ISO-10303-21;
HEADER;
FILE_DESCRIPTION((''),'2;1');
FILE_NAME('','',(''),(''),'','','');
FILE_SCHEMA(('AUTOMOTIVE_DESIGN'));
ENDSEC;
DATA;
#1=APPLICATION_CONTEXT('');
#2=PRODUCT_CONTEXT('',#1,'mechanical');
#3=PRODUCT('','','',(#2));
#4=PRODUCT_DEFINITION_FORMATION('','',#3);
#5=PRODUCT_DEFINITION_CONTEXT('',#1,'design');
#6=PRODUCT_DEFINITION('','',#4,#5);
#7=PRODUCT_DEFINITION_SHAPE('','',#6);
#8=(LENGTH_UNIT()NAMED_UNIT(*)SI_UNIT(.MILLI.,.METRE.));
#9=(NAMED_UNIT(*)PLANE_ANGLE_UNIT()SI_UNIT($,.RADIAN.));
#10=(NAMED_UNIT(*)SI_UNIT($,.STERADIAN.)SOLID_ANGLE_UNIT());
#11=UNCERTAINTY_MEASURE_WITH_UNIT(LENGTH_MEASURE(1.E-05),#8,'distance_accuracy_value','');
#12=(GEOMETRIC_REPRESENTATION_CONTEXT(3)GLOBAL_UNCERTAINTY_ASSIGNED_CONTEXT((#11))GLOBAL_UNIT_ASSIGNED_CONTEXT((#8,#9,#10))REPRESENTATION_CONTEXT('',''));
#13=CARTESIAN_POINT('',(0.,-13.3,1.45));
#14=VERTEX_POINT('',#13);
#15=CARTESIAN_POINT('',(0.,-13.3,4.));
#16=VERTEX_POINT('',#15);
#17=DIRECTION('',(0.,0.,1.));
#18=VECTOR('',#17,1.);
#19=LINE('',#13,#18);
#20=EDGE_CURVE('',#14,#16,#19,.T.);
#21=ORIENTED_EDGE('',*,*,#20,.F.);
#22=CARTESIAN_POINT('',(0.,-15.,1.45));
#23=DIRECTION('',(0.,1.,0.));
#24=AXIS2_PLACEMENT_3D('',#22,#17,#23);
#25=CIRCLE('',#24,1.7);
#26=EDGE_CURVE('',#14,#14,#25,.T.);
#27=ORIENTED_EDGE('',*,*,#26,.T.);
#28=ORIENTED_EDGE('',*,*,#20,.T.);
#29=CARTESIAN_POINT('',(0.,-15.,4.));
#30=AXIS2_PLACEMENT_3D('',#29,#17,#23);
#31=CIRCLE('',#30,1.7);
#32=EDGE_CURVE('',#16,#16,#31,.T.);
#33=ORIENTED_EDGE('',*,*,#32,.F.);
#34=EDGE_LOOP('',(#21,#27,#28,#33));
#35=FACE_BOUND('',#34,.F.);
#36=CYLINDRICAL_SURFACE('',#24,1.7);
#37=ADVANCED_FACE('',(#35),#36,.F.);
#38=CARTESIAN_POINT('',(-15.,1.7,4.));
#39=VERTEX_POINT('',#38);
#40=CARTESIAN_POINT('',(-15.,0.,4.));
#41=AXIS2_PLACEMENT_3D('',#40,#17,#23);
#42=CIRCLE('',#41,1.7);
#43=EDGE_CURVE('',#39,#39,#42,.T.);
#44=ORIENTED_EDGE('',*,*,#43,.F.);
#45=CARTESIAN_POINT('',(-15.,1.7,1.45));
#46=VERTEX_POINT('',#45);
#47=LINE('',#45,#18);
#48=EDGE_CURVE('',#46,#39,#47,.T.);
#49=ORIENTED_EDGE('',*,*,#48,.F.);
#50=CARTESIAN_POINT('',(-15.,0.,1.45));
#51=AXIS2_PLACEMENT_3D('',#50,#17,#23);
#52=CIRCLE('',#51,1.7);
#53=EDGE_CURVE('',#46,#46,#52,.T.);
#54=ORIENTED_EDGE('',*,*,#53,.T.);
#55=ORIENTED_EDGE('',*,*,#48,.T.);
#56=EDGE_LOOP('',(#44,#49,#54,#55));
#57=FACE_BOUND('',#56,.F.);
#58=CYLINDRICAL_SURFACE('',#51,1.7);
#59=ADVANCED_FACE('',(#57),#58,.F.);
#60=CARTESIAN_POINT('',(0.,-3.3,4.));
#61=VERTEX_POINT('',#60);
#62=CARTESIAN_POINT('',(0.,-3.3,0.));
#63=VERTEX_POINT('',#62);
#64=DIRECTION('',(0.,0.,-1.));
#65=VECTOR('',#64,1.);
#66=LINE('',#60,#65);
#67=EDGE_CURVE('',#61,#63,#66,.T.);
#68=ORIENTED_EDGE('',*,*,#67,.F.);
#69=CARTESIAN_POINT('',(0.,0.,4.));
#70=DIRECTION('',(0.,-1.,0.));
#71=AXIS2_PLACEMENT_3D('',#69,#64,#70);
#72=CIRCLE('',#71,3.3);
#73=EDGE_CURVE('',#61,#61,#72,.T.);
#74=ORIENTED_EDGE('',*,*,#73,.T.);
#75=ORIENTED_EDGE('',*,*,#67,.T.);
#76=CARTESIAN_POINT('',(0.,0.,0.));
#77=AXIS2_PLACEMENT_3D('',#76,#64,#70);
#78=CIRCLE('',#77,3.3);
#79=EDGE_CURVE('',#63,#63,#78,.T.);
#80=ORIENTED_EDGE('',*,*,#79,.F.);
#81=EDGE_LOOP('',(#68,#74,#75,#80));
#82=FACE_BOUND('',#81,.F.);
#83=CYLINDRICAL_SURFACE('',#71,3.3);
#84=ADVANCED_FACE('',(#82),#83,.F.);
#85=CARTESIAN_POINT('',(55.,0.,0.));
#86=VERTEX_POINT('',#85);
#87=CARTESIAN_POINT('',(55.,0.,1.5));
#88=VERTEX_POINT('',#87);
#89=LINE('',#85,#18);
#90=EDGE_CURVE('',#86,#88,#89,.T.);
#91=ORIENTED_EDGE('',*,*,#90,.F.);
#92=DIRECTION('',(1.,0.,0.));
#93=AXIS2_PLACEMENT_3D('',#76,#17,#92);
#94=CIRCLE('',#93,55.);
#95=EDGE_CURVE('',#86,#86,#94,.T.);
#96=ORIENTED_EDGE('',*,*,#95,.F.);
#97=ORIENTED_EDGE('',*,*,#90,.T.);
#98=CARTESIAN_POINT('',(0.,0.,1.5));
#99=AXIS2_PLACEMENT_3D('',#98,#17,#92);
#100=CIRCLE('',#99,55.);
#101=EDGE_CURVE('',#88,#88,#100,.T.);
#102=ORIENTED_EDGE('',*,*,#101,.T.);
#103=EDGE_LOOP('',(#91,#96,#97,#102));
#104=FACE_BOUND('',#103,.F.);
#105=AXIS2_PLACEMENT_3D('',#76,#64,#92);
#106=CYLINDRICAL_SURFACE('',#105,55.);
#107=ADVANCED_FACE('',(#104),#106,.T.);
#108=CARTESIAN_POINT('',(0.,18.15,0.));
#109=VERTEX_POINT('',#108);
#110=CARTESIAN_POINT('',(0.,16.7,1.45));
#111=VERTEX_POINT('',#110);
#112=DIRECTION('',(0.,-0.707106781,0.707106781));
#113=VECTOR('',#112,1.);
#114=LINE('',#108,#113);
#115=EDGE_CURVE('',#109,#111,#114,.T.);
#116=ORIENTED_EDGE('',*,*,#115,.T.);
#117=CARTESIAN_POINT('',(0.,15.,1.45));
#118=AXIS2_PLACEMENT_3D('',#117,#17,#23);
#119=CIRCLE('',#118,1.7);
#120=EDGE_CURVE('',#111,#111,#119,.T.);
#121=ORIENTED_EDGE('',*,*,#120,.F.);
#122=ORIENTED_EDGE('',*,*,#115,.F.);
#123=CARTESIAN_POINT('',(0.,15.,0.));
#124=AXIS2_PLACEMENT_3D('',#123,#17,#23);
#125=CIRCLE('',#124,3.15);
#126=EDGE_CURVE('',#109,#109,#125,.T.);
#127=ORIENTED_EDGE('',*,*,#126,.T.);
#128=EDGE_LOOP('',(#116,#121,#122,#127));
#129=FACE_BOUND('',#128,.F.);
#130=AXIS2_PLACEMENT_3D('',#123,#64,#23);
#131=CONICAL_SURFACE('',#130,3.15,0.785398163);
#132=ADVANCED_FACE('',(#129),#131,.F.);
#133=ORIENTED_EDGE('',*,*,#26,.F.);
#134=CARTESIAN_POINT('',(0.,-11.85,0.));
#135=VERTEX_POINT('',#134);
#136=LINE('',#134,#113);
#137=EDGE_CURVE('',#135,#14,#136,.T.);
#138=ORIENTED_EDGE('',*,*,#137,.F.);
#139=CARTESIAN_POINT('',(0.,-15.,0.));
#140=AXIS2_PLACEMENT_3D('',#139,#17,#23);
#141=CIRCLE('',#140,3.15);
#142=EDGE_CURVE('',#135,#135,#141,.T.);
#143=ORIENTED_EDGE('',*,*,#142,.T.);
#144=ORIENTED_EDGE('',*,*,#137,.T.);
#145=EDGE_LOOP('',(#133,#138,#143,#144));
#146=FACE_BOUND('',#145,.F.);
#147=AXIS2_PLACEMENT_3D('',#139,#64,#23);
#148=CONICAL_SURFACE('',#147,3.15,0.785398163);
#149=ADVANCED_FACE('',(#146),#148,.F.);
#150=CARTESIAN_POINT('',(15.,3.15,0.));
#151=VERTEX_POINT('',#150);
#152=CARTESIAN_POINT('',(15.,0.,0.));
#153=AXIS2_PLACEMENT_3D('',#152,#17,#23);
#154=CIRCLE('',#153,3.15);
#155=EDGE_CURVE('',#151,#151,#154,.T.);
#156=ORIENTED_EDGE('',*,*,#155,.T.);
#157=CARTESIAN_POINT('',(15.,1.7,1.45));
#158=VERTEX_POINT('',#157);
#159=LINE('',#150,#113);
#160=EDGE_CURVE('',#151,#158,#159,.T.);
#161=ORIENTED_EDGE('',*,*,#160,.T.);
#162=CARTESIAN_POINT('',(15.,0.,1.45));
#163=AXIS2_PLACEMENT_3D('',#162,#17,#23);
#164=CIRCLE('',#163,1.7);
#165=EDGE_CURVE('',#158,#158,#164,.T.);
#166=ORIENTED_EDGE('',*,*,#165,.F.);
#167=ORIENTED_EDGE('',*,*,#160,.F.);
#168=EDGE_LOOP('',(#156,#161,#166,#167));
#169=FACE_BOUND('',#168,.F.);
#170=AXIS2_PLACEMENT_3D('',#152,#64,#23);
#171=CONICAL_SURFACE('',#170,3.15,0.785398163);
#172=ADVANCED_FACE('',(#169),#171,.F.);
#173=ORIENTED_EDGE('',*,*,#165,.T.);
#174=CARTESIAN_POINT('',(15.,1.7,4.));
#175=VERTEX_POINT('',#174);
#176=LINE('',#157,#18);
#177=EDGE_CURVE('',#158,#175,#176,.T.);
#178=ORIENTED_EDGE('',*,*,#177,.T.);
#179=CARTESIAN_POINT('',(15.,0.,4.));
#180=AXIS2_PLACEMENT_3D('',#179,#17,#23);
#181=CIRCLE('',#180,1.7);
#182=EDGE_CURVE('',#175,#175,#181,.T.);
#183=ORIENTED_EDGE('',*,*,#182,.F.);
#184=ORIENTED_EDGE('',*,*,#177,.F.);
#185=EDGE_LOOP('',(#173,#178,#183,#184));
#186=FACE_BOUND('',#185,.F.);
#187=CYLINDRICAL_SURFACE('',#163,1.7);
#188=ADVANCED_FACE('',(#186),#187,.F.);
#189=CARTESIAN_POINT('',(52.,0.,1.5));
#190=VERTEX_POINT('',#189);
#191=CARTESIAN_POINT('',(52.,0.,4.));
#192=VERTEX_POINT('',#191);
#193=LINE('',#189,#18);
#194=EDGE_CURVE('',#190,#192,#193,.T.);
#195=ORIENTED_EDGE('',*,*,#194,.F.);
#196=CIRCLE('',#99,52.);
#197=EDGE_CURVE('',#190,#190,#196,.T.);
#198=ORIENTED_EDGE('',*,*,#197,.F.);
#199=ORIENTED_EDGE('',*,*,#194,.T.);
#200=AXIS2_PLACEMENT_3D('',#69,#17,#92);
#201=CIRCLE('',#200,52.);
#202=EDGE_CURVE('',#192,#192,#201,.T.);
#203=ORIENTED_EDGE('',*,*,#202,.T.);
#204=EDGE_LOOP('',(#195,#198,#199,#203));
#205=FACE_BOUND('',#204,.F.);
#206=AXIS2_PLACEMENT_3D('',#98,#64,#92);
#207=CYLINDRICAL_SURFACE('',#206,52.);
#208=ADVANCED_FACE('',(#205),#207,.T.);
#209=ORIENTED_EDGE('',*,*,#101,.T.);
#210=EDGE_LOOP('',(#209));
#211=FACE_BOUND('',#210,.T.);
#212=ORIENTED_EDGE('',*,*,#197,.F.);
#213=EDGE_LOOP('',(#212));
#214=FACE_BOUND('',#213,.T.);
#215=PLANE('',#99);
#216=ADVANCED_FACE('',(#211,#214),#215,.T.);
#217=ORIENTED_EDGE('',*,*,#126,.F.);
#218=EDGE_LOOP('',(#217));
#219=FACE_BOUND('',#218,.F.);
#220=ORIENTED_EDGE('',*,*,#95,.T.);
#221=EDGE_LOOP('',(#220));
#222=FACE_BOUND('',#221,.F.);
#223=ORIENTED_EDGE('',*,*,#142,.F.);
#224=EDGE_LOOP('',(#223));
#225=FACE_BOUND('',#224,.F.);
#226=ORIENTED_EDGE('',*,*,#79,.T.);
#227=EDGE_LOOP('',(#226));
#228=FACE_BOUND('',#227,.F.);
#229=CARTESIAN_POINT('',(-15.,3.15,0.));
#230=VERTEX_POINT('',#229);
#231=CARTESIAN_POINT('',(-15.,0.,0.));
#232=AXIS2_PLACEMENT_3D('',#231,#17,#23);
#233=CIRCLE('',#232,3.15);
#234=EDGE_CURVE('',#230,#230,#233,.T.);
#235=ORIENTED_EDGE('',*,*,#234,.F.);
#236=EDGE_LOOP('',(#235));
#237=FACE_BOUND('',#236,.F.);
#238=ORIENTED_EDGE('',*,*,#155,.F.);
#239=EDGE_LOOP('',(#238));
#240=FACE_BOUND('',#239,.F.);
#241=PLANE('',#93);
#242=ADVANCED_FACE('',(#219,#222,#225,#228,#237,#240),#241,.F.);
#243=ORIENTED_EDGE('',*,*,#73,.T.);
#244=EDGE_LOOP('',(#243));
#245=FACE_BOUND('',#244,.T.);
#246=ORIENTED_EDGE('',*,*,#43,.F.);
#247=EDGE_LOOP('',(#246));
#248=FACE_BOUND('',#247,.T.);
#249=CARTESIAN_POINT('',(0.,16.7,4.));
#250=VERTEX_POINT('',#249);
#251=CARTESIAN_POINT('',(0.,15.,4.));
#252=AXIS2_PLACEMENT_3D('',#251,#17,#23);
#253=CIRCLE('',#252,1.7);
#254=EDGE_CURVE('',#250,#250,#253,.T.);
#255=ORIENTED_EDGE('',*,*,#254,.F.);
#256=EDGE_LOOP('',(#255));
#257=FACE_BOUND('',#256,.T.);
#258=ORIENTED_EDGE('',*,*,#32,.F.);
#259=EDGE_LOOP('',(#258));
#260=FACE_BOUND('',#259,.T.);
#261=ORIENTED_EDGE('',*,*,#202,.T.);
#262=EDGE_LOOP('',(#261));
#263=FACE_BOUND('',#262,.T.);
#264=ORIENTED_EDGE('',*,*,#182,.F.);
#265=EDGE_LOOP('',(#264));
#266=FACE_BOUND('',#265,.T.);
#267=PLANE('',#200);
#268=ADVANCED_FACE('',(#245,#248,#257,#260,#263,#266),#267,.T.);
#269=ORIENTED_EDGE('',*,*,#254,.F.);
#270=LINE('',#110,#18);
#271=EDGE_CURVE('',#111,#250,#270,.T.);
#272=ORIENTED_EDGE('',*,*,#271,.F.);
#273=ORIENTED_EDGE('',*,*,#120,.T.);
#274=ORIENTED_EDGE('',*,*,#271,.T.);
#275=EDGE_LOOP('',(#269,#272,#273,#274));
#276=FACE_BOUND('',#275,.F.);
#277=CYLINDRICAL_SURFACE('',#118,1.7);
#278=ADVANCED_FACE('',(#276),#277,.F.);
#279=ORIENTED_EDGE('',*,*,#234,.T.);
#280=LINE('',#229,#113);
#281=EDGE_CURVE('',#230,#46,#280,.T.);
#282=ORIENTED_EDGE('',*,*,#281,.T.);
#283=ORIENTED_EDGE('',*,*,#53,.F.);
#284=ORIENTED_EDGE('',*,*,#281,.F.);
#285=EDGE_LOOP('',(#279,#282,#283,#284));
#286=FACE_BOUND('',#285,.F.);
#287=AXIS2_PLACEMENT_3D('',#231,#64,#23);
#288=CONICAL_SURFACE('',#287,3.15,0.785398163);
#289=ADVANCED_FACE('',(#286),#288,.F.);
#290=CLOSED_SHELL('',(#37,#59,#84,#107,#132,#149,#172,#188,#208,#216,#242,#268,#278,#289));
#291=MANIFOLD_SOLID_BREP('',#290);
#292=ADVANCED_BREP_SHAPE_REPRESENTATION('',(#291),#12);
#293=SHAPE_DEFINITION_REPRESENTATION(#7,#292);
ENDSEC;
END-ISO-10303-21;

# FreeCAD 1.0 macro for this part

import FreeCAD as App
import Part
import Sketcher

doc = App.newDocument("Part")
params = doc.addObject("Spreadsheet::Sheet", "Params")
for row, (alias, value) in enumerate([
    ("sketch1_diameter", "110 mm"),
    ("pad1_length", "1.5 mm"),
    ("sketch2_diameter", "104 mm"),
    ("pad2_length", "2.5 mm"),
    ("sketch3_diameter", "6.6 mm"),
    ("hole_diameter", "6.6 mm"),
    ("sketch4_diameter", "3.4 mm"),
    ("hole2_diameter", "3.4 mm"),
    ("hole2_depth", "8 mm"),
    ("hole2_csink_diameter", "6.3 mm"),
], start=1):
    params.set(f"A{row}", alias)
    params.set(f"B{row}", "=" + value)
    params.setAlias(f"B{row}", alias)

body = doc.addObject("PartDesign::Body", "Body")

sketch1 = body.newObject("Sketcher::SketchObject", "Sketch")
sketch1.AttachmentSupport = (doc.getObject("XY_Plane"), [""])
sketch1.MapMode = "FlatFace"
sketch1.addGeometry(Part.Circle(App.Vector(0, 0, 0), App.Vector(0, 0, 1), 55), False)
sketch1.addConstraint([
    Sketcher.Constraint("Coincident", 0, 3, -1, 1),
    Sketcher.Constraint("Diameter", 0, 110.0),
])
sketch1.setExpression("Constraints[1]", "Params.sketch1_diameter")
pad1 = body.newObject("PartDesign::Pad", "Pad")
pad1.Profile = sketch1
pad1.setExpression("Length", "Params.pad1_length")

sketch2 = body.newObject("Sketcher::SketchObject", "Sketch001")
sketch2.AttachmentSupport = (doc.getObject("XY_Plane"), [""])
sketch2.MapMode = "FlatFace"
sketch2.AttachmentOffset = App.Placement(App.Vector(0, 0, 1.5), App.Rotation())
sketch2.addGeometry(Part.Circle(App.Vector(0, 0, 0), App.Vector(0, 0, 1), 52), False)
sketch2.addConstraint([
    Sketcher.Constraint("Coincident", 0, 3, -1, 1),
    Sketcher.Constraint("Diameter", 0, 104.0),
])
sketch2.setExpression("Constraints[1]", "Params.sketch2_diameter")
pad2 = body.newObject("PartDesign::Pad", "Pad001")
pad2.Profile = sketch2
pad2.setExpression("Length", "Params.pad2_length")

sketch3 = body.newObject("Sketcher::SketchObject", "Sketch002")
sketch3.AttachmentSupport = (doc.getObject("XY_Plane"), [""])
sketch3.MapMode = "FlatFace"
sketch3.AttachmentOffset = App.Placement(App.Vector(0, 0, 4), App.Rotation())
sketch3.addGeometry(Part.Circle(App.Vector(0, 0, 0), App.Vector(0, 0, 1), 3.3), False)
sketch3.addConstraint([
    Sketcher.Constraint("Coincident", 0, 3, -1, 1),
    Sketcher.Constraint("Diameter", 0, 6.6),
])
sketch3.setExpression("Constraints[1]", "Params.sketch3_diameter")
doc.recompute()
hole = body.newObject("PartDesign::Hole", "Hole")
hole.Profile = sketch3
hole.ThreadType = "None"
hole.setExpression("Diameter", "Params.hole_diameter")
hole.DepthType = "ThroughAll"

sketch4 = body.newObject("Sketcher::SketchObject", "Sketch003")
sketch4.AttachmentSupport = (doc.getObject("XY_Plane"), [""])
sketch4.MapMode = "FlatFace"
sketch4.addGeometry([
    Part.Circle(App.Vector(-15, 0, 0), App.Vector(0, 0, 1), 1.7),
    Part.Circle(App.Vector(0, -15, 0), App.Vector(0, 0, 1), 1.7),
    Part.Circle(App.Vector(15, 0, 0), App.Vector(0, 0, 1), 1.7),
    Part.Circle(App.Vector(0, 15, 0), App.Vector(0, 0, 1), 1.7),
], False)
sketch4.addConstraint([
    Sketcher.Constraint("Equal", 0, 1),
    Sketcher.Constraint("Equal", 1, 2),
    Sketcher.Constraint("Equal", 2, 3),
    Sketcher.Constraint("Symmetric", 0, 3, 2, 3, -1, 1),
    Sketcher.Constraint("Symmetric", 1, 3, 3, 3, -1, 1),
    Sketcher.Constraint("PointOnObject", 0, 3, -1),
    Sketcher.Constraint("PointOnObject", 1, 3, -2),
    Sketcher.Constraint("Diameter", 0, 3.4),
    Sketcher.Constraint("DistanceX", 0, 3, -1, 1, 15.0),
    Sketcher.Constraint("DistanceY", 1, 3, -1, 1, 15.0),
])
sketch4.setExpression("Constraints[7]", "Params.sketch4_diameter")
doc.recompute()
hole2 = body.newObject("PartDesign::Hole", "Hole001")
hole2.Profile = sketch4
hole2.ThreadType = "None"
hole2.setExpression("Diameter", "Params.hole2_diameter")
hole2.DepthType = "Dimension"
hole2.setExpression("Depth", "Params.hole2_depth")
hole2.DrillPoint = "Angled"
hole2.DrillPointAngle = 118
hole2.HoleCutType = "Countersink"
hole2.setExpression("HoleCutDiameter", "Params.hole2_csink_diameter")
hole2.HoleCutCountersinkAngle = 90
hole2.Reversed = True

doc.recompute()
